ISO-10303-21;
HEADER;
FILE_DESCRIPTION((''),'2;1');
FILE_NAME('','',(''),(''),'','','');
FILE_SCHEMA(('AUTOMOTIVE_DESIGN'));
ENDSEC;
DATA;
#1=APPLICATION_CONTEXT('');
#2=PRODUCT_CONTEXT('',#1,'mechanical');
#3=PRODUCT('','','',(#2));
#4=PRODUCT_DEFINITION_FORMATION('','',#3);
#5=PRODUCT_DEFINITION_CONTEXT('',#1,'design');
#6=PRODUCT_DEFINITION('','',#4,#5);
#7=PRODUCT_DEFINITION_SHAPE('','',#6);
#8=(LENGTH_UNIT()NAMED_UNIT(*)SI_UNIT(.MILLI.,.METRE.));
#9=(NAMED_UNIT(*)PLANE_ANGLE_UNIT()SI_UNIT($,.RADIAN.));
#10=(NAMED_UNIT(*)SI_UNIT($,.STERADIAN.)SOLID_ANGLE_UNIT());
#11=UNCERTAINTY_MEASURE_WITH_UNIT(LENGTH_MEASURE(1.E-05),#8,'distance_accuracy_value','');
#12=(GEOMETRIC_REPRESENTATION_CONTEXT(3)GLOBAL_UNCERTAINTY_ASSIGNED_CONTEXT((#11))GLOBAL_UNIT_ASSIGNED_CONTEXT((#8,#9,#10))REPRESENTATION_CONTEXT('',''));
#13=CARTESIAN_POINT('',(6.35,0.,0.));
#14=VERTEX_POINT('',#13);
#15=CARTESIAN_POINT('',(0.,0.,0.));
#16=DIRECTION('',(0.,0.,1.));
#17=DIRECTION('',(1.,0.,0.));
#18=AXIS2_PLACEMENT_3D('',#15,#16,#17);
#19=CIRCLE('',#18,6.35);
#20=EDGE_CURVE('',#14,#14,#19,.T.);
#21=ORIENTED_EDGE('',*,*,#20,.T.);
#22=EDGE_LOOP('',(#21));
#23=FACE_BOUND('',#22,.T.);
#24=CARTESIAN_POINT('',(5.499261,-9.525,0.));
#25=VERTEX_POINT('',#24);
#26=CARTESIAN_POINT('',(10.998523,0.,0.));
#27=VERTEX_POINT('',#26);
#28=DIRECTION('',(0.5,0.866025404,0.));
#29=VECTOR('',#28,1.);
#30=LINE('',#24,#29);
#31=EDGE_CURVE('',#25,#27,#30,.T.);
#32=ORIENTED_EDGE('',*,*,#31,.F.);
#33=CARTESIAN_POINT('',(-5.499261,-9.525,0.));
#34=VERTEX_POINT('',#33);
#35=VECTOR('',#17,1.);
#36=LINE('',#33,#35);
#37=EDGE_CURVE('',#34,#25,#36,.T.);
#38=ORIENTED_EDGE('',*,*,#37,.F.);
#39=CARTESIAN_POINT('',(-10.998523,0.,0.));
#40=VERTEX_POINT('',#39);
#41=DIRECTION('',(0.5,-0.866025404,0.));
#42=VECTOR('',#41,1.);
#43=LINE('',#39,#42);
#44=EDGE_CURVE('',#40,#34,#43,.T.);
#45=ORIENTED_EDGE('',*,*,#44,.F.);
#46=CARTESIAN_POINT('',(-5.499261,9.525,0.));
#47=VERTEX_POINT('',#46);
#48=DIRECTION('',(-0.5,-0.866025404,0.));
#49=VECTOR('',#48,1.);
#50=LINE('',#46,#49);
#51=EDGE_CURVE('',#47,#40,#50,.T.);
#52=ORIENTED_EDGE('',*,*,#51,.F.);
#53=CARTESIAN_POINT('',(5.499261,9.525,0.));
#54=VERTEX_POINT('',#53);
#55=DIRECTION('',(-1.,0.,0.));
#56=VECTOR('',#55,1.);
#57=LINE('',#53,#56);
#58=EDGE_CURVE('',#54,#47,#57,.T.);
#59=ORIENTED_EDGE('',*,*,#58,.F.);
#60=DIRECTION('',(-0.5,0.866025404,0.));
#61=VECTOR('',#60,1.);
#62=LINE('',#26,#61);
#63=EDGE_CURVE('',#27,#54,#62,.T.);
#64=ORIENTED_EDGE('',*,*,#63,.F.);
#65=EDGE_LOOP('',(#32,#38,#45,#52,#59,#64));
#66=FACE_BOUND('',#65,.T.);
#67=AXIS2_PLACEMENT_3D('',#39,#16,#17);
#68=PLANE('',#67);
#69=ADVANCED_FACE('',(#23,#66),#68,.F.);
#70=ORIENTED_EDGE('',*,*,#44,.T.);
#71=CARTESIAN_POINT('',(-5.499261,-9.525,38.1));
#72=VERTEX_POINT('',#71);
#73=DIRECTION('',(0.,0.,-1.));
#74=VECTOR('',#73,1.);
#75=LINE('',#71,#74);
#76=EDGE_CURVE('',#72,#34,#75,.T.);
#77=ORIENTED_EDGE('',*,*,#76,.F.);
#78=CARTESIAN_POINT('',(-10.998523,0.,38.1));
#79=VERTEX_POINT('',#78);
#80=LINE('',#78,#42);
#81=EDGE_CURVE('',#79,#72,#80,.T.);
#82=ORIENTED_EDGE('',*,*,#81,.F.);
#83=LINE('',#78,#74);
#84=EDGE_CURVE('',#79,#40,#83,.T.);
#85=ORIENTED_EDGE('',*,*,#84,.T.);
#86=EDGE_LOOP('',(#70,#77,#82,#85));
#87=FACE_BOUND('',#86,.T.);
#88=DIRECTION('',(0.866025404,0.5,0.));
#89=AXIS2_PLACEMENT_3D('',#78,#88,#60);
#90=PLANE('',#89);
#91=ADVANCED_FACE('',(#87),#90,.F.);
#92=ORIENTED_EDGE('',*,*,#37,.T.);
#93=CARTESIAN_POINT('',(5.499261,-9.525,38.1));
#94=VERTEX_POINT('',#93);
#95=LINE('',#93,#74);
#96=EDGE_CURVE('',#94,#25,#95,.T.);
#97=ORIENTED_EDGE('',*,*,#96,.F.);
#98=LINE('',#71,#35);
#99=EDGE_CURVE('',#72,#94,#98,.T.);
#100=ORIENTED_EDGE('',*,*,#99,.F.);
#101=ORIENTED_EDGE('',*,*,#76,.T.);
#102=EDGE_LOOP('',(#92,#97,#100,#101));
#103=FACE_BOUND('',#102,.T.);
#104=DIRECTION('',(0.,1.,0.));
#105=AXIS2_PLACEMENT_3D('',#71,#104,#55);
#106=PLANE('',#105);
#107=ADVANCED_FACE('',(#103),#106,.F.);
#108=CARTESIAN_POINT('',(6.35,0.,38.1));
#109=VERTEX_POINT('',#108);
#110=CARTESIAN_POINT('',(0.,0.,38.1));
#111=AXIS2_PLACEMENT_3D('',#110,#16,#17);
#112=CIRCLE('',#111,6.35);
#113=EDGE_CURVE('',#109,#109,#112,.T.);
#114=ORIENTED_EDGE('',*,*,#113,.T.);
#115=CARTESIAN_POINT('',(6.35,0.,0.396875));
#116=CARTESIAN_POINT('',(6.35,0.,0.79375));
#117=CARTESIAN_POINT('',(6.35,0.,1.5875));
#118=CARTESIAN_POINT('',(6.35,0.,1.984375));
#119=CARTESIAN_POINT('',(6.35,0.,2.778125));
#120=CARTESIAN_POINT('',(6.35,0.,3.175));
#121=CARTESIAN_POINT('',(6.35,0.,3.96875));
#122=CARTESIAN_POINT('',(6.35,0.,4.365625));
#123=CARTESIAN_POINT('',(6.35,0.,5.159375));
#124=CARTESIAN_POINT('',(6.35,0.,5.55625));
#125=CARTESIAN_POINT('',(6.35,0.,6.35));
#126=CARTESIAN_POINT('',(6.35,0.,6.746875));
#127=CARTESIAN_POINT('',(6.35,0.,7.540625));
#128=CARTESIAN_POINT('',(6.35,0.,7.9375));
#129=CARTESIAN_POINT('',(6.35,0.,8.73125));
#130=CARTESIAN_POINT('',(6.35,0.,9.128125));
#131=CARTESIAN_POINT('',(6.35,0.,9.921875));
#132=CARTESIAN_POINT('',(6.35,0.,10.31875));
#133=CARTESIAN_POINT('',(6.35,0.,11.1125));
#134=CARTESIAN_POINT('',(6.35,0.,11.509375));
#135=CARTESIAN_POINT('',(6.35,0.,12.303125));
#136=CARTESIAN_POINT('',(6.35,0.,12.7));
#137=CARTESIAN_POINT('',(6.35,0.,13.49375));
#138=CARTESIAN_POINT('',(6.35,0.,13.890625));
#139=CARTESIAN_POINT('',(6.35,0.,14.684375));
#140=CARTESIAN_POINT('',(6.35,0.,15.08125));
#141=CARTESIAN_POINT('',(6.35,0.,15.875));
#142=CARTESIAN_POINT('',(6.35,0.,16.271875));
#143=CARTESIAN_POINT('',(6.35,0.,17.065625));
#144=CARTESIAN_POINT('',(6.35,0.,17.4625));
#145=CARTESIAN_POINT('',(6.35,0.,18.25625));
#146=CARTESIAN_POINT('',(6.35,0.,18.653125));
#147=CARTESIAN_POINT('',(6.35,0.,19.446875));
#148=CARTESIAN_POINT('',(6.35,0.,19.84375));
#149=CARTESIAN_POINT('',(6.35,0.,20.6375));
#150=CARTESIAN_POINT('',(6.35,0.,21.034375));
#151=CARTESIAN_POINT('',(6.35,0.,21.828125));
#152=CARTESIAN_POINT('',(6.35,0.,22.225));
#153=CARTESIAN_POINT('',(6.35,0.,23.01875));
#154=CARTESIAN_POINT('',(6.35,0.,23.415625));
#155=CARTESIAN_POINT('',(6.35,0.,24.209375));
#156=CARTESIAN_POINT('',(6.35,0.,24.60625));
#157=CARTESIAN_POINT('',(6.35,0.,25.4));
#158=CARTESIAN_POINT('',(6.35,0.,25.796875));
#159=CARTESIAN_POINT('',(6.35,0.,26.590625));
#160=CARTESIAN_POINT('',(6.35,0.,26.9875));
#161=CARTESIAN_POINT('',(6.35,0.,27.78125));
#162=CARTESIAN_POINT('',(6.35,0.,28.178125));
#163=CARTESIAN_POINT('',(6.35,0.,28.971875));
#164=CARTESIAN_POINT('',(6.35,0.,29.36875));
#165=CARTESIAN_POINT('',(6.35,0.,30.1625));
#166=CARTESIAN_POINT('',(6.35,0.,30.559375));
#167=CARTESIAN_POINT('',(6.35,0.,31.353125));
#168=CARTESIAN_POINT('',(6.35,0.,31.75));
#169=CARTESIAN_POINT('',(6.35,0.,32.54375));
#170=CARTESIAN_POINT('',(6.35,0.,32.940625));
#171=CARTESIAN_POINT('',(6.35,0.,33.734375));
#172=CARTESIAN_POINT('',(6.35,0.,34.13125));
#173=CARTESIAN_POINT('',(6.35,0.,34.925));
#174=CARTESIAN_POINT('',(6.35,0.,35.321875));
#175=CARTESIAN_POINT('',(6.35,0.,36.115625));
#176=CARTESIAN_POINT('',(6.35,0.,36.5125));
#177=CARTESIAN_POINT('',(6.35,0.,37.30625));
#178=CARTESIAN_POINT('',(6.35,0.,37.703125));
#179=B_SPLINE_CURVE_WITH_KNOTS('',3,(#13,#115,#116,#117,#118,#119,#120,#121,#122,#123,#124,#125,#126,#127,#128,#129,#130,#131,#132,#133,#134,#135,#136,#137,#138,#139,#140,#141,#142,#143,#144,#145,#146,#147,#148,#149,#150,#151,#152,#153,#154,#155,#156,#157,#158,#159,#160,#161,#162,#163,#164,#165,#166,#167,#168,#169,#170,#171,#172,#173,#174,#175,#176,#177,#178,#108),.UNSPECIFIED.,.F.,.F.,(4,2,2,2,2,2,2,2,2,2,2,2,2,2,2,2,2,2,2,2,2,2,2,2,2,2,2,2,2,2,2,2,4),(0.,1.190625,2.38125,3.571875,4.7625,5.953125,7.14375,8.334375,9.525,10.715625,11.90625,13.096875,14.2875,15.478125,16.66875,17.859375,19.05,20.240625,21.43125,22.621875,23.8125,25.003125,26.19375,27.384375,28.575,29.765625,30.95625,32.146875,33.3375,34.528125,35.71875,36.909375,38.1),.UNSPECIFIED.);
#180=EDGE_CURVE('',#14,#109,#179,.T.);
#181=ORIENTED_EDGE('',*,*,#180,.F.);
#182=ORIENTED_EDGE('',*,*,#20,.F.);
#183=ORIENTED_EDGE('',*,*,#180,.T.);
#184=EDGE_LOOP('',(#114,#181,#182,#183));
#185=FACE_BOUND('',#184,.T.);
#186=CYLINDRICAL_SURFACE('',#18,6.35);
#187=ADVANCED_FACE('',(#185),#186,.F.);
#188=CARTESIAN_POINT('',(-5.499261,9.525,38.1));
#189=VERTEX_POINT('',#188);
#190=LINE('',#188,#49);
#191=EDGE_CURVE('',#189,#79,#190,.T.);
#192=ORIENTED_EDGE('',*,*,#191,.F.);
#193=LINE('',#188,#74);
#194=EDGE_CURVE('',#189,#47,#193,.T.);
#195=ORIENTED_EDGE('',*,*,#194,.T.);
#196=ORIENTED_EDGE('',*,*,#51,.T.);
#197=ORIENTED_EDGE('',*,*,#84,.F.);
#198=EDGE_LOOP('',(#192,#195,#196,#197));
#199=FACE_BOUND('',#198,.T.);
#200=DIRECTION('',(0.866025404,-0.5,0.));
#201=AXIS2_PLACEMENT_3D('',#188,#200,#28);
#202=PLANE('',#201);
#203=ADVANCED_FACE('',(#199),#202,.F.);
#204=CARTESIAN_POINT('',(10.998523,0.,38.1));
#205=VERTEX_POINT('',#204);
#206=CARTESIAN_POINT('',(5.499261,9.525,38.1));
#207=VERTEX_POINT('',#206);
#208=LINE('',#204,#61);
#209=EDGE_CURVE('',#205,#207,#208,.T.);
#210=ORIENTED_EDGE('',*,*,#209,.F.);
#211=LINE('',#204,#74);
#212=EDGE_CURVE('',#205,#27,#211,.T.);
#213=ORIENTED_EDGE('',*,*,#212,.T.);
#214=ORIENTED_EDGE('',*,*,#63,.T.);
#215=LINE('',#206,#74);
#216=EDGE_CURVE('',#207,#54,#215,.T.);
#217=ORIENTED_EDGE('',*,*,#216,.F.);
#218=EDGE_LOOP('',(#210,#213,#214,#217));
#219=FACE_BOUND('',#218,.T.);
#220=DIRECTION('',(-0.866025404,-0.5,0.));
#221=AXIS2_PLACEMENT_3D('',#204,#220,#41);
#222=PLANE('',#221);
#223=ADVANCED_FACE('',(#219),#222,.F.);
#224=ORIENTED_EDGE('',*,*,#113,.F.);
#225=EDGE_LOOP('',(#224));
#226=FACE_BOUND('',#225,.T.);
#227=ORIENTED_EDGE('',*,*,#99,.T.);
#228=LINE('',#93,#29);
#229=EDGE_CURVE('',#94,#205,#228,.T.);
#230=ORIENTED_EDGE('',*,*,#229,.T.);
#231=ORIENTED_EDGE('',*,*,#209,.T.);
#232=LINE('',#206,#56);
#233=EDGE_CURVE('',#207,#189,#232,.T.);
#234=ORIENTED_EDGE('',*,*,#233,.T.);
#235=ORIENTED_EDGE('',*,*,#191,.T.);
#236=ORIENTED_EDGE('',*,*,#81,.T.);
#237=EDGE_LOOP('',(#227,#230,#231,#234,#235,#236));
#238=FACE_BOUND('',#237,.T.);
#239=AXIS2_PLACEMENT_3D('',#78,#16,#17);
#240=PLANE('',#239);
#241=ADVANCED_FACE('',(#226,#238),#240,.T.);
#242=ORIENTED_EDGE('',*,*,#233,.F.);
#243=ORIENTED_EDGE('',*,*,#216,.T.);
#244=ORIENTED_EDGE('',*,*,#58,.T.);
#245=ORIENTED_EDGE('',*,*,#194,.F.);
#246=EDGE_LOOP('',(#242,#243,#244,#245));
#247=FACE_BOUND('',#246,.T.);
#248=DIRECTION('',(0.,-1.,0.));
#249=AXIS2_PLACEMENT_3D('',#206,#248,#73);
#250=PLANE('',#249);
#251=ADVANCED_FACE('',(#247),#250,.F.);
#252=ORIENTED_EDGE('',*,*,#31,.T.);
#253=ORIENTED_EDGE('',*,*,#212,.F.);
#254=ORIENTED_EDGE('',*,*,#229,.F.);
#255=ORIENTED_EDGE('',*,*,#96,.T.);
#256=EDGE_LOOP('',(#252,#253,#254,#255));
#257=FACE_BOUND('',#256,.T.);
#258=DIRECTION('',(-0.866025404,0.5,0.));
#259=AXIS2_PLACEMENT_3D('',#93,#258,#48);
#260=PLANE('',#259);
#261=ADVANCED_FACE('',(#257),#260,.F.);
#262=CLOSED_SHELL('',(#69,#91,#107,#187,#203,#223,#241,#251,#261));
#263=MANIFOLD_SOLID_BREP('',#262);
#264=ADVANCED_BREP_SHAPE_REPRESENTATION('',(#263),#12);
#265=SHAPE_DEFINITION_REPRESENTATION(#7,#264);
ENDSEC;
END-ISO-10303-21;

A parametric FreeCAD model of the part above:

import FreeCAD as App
import Part
import Sketcher
from FreeCAD import Vector
Q = App.Units.Quantity


def add_polygon(sketch, points):
    """Adds a closed chain of lines whose ends are joined by coincident constraints."""
    first, n = sketch.GeometryCount, len(points)
    for a, b in zip(points, points[1:] + points[:1]):
        sketch.addGeometry(Part.LineSegment(App.Vector(*a, 0), App.Vector(*b, 0)), False)
    for i in range(n):
        sketch.addConstraint(Sketcher.Constraint("Coincident", first + i, 2, first + (i + 1) % n, 1))

doc = App.newDocument("Part")
body = doc.addObject("PartDesign::Body", "Body")

# Sketch on XY plane
sketch1 = body.newObject("Sketcher::SketchObject", "Sketch")
sketch1.AttachmentSupport = (doc.getObject("XY_Plane"), [""])
sketch1.MapMode = "FlatFace"
add_polygon(sketch1, [(-11, 0), (-5, -10), (5, -10), (11, 0), (5, 10), (-5, 10)])  # lines 0-5
sketch1.addConstraint([
    Sketcher.Constraint("Horizontal", 1),
    Sketcher.Constraint("Horizontal", 4),
    Sketcher.Constraint("Symmetric", 0, 2, 3, 2, -1, 1),
    Sketcher.Constraint("Symmetric", 2, 2, 5, 2, -1, 1),
    Sketcher.Constraint("PointOnObject", 2, 2, -1),
    Sketcher.Constraint("Parallel", 2, 5),
    Sketcher.Constraint("Vertical", 1, 2, 3, 2),
    Sketcher.Constraint("Angle", 0, Q("-60 deg")),
    Sketcher.Constraint("DistanceY", 1, 2, 3, 2, Q("0.75 in")),
    Sketcher.Constraint("DistanceX", 1, 1, 1, 2, Q("10.998523 mm")),
])
pad1 = body.newObject("PartDesign::Pad", "Pad")
pad1.Profile = sketch1
pad1.Length = Q("1.5 in")

# Sketch on XY plane
sketch2 = body.newObject("Sketcher::SketchObject", "Sketch001")
sketch2.AttachmentSupport = (doc.getObject("XY_Plane"), [""])
sketch2.MapMode = "FlatFace"
sketch2.AttachmentOffset = App.Placement(Vector(0, 0, 1.5 * 25.4), App.Rotation())
sketch2.addGeometry(Part.Circle(Vector(0, 0, 0), Vector(0, 0, 1), 6), False)
sketch2.addConstraint([
    Sketcher.Constraint("Coincident", 0, 3, -1, 1),
    Sketcher.Constraint("Diameter", 0, Q("0.5 in")),
])
pocket1 = body.newObject("PartDesign::Pocket", "Pocket")
pocket1.Profile = sketch2
pocket1.Type = "ThroughAll"

doc.recompute()
